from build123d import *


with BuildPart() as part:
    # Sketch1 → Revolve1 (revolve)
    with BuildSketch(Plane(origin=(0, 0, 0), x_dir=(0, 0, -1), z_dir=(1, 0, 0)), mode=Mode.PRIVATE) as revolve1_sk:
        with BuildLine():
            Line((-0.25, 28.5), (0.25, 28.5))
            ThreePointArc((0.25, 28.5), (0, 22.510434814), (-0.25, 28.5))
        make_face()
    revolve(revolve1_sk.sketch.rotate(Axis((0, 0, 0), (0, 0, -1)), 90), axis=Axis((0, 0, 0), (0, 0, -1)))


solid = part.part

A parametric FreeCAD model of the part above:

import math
import FreeCAD as App
import Part
import Sketcher
from FreeCAD import Vector
Q = App.Units.Quantity

doc = App.newDocument("Part")
body = doc.addObject("PartDesign::Body", "Body")

# Sketch on YZ plane
sketch1 = body.newObject("Sketcher::SketchObject", "Sketch")
sketch1.AttachmentSupport = (doc.getObject("YZ_Plane"), [""])
sketch1.MapMode = "FlatFace"
sketch1.addGeometry(Part.LineSegment(Vector(28.5, -0.2, 0), Vector(28.5, 0.2, 0)), False)
sketch1.addGeometry(Part.ArcOfCircle(Part.Circle(Vector(25.5, 0, 0), Vector(0, 0, 1), 3), math.radians(5), math.radians(355)), False)
sketch1.addConstraint(Sketcher.Constraint("Coincident", 0, 1, 1, 2))
sketch1.addConstraint(Sketcher.Constraint("Coincident", 1, 1, 0, 2))
sketch1.addConstraint(Sketcher.Constraint("Vertical", 0))
sketch1.addConstraint(Sketcher.Constraint("PointOnObject", 1, 3, -1))
sketch1.addConstraint(Sketcher.Constraint("Radius", 1, Q("3 mm")))
sketch1.addConstraint(Sketcher.Constraint("DistanceY", 0, 1, 0, 2, Q("0.5 mm")))
sketch1.addConstraint(Sketcher.Constraint("DistanceX", -1, 1, 0, 1, Q("28.5 mm")))
revolution = body.newObject("PartDesign::Revolution", "Revolution")
revolution.Profile = sketch1
revolution.ReferenceAxis = (sketch1, ["V_Axis"])
revolution.Angle = 360

doc.recompute()
